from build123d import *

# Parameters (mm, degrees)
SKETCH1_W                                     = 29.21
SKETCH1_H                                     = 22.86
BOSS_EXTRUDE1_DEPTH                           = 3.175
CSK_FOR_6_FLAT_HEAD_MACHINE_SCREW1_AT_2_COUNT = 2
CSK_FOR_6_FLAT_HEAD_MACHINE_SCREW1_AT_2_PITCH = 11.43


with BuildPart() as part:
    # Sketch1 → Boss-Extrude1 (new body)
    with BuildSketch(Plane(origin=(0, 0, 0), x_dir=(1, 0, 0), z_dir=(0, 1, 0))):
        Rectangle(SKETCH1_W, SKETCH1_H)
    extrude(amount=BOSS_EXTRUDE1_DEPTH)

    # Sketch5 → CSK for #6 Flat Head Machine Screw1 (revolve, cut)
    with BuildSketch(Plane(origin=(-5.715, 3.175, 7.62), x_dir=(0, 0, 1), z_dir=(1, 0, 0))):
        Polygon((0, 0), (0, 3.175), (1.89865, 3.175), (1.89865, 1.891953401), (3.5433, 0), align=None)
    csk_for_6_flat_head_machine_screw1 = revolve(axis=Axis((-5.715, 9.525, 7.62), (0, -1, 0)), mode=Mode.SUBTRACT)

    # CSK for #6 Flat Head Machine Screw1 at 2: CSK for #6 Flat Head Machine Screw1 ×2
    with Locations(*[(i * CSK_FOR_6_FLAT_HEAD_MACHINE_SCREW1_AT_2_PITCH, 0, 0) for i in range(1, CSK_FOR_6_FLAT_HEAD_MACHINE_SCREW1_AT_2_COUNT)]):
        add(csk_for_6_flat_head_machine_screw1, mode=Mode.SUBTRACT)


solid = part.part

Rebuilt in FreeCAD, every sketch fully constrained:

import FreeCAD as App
import Part
import Sketcher

V = App.Vector
Q = App.Units.Quantity


def add_polygon(sketch, points):
    """Adds a closed chain of lines whose ends are joined by coincident constraints."""
    first, n = sketch.GeometryCount, len(points)
    for a, b in zip(points, points[1:] + points[:1]):
        sketch.addGeometry(Part.LineSegment(App.Vector(*a, 0), App.Vector(*b, 0)), False)
    for i in range(n):
        sketch.addConstraint(Sketcher.Constraint("Coincident", first + i, 2, first + (i + 1) % n, 1))

doc = App.newDocument("Part")
body = doc.addObject("PartDesign::Body", "Body")

sketch1 = doc.addObject("Sketcher::SketchObject", "Sketch")
body.addObject(sketch1)
sketch1.AttachmentSupport = (doc.XZ_Plane, [""])
sketch1.MapMode = "FlatFace"
add_polygon(sketch1, [(-15, -11), (-15, 11), (15, 11), (15, -11)])
sketch1.addConstraint(Sketcher.Constraint("Vertical", 0))
sketch1.addConstraint(Sketcher.Constraint("Horizontal", 1))
sketch1.addConstraint(Sketcher.Constraint("Vertical", 2))
sketch1.addConstraint(Sketcher.Constraint("Horizontal", 3))
sketch1.addConstraint(Sketcher.Constraint("Symmetric", 0, 2, 2, 2, -1, 1))
sketch1.addConstraint(Sketcher.Constraint("DistanceY", 0, 1, 0, 2, Q("0.9 in")))
sketch1.addConstraint(Sketcher.Constraint("DistanceX", 1, 1, 1, 2, Q("1.15 in")))
pad1 = doc.addObject("PartDesign::Pad", "Pad")
body.addObject(pad1)
pad1.Profile = sketch1
pad1.Length = Q("0.125 in")
pad1.Reversed = True

sketch2 = doc.addObject("Sketcher::SketchObject", "Sketch001")
body.addObject(sketch2)
sketch2.AttachmentSupport = (doc.YZ_Plane, [""])
sketch2.MapMode = "FlatFace"
sketch2.AttachmentOffset = App.Placement(V(0, 0, -0.225 * 25.4), App.Rotation())
add_polygon(sketch2, [(0, 7.6), (3.2, 7.6), (3.2, 11.2), (1.3, 9.5), (0, 9.5)])
sketch2.addGeometry(Part.LineSegment(V(3.2, 7.6, 0), V(0, 7.6, 0)), True)
sketch2.addConstraint(Sketcher.Constraint("Horizontal", 0))
sketch2.addConstraint(Sketcher.Constraint("Vertical", 1))
sketch2.addConstraint(Sketcher.Constraint("Horizontal", 3))
sketch2.addConstraint(Sketcher.Constraint("Vertical", 4))
sketch2.addConstraint(Sketcher.Constraint("Horizontal", 5))
sketch2.addConstraint(Sketcher.Constraint("Coincident", 5, 1, 0, 2))
sketch2.addConstraint(Sketcher.Constraint("PointOnObject", 3, 2, -2))
sketch2.addConstraint(Sketcher.Constraint("PointOnObject", 5, 2, -2))
sketch2.addConstraint(Sketcher.Constraint("Angle", 2, Q("-139 deg")))
sketch2.addConstraint(Sketcher.Constraint("DistanceY", -1, 1, 0, 2, Q("0.3 in")))
sketch2.addConstraint(Sketcher.Constraint("DistanceX", 0, 1, 0, 2, Q("0.125 in")))
sketch2.addConstraint(Sketcher.Constraint("DistanceY", 1, 1, 1, 2, Q("0.1395 in")))
sketch2.addConstraint(Sketcher.Constraint("DistanceY", 4, 2, 4, 1, 1.89865))
groove = doc.addObject("PartDesign::Groove", "Groove")
body.addObject(groove)
groove.Profile = sketch2
groove.ReferenceAxis = (sketch2, ["Axis0"])
groove.Angle = 360
doc.recompute()

linearpattern = doc.addObject("PartDesign::LinearPattern", "LinearPattern")
body.addObject(linearpattern)
linearpattern.Originals = [groove]
linearpattern.Direction = (doc.X_Axis, [""])
linearpattern.Mode = "offset"
linearpattern.Offset = Q("0.45 in")
linearpattern.Occurrences = 2
body.Tip = linearpattern

doc.recompute()
